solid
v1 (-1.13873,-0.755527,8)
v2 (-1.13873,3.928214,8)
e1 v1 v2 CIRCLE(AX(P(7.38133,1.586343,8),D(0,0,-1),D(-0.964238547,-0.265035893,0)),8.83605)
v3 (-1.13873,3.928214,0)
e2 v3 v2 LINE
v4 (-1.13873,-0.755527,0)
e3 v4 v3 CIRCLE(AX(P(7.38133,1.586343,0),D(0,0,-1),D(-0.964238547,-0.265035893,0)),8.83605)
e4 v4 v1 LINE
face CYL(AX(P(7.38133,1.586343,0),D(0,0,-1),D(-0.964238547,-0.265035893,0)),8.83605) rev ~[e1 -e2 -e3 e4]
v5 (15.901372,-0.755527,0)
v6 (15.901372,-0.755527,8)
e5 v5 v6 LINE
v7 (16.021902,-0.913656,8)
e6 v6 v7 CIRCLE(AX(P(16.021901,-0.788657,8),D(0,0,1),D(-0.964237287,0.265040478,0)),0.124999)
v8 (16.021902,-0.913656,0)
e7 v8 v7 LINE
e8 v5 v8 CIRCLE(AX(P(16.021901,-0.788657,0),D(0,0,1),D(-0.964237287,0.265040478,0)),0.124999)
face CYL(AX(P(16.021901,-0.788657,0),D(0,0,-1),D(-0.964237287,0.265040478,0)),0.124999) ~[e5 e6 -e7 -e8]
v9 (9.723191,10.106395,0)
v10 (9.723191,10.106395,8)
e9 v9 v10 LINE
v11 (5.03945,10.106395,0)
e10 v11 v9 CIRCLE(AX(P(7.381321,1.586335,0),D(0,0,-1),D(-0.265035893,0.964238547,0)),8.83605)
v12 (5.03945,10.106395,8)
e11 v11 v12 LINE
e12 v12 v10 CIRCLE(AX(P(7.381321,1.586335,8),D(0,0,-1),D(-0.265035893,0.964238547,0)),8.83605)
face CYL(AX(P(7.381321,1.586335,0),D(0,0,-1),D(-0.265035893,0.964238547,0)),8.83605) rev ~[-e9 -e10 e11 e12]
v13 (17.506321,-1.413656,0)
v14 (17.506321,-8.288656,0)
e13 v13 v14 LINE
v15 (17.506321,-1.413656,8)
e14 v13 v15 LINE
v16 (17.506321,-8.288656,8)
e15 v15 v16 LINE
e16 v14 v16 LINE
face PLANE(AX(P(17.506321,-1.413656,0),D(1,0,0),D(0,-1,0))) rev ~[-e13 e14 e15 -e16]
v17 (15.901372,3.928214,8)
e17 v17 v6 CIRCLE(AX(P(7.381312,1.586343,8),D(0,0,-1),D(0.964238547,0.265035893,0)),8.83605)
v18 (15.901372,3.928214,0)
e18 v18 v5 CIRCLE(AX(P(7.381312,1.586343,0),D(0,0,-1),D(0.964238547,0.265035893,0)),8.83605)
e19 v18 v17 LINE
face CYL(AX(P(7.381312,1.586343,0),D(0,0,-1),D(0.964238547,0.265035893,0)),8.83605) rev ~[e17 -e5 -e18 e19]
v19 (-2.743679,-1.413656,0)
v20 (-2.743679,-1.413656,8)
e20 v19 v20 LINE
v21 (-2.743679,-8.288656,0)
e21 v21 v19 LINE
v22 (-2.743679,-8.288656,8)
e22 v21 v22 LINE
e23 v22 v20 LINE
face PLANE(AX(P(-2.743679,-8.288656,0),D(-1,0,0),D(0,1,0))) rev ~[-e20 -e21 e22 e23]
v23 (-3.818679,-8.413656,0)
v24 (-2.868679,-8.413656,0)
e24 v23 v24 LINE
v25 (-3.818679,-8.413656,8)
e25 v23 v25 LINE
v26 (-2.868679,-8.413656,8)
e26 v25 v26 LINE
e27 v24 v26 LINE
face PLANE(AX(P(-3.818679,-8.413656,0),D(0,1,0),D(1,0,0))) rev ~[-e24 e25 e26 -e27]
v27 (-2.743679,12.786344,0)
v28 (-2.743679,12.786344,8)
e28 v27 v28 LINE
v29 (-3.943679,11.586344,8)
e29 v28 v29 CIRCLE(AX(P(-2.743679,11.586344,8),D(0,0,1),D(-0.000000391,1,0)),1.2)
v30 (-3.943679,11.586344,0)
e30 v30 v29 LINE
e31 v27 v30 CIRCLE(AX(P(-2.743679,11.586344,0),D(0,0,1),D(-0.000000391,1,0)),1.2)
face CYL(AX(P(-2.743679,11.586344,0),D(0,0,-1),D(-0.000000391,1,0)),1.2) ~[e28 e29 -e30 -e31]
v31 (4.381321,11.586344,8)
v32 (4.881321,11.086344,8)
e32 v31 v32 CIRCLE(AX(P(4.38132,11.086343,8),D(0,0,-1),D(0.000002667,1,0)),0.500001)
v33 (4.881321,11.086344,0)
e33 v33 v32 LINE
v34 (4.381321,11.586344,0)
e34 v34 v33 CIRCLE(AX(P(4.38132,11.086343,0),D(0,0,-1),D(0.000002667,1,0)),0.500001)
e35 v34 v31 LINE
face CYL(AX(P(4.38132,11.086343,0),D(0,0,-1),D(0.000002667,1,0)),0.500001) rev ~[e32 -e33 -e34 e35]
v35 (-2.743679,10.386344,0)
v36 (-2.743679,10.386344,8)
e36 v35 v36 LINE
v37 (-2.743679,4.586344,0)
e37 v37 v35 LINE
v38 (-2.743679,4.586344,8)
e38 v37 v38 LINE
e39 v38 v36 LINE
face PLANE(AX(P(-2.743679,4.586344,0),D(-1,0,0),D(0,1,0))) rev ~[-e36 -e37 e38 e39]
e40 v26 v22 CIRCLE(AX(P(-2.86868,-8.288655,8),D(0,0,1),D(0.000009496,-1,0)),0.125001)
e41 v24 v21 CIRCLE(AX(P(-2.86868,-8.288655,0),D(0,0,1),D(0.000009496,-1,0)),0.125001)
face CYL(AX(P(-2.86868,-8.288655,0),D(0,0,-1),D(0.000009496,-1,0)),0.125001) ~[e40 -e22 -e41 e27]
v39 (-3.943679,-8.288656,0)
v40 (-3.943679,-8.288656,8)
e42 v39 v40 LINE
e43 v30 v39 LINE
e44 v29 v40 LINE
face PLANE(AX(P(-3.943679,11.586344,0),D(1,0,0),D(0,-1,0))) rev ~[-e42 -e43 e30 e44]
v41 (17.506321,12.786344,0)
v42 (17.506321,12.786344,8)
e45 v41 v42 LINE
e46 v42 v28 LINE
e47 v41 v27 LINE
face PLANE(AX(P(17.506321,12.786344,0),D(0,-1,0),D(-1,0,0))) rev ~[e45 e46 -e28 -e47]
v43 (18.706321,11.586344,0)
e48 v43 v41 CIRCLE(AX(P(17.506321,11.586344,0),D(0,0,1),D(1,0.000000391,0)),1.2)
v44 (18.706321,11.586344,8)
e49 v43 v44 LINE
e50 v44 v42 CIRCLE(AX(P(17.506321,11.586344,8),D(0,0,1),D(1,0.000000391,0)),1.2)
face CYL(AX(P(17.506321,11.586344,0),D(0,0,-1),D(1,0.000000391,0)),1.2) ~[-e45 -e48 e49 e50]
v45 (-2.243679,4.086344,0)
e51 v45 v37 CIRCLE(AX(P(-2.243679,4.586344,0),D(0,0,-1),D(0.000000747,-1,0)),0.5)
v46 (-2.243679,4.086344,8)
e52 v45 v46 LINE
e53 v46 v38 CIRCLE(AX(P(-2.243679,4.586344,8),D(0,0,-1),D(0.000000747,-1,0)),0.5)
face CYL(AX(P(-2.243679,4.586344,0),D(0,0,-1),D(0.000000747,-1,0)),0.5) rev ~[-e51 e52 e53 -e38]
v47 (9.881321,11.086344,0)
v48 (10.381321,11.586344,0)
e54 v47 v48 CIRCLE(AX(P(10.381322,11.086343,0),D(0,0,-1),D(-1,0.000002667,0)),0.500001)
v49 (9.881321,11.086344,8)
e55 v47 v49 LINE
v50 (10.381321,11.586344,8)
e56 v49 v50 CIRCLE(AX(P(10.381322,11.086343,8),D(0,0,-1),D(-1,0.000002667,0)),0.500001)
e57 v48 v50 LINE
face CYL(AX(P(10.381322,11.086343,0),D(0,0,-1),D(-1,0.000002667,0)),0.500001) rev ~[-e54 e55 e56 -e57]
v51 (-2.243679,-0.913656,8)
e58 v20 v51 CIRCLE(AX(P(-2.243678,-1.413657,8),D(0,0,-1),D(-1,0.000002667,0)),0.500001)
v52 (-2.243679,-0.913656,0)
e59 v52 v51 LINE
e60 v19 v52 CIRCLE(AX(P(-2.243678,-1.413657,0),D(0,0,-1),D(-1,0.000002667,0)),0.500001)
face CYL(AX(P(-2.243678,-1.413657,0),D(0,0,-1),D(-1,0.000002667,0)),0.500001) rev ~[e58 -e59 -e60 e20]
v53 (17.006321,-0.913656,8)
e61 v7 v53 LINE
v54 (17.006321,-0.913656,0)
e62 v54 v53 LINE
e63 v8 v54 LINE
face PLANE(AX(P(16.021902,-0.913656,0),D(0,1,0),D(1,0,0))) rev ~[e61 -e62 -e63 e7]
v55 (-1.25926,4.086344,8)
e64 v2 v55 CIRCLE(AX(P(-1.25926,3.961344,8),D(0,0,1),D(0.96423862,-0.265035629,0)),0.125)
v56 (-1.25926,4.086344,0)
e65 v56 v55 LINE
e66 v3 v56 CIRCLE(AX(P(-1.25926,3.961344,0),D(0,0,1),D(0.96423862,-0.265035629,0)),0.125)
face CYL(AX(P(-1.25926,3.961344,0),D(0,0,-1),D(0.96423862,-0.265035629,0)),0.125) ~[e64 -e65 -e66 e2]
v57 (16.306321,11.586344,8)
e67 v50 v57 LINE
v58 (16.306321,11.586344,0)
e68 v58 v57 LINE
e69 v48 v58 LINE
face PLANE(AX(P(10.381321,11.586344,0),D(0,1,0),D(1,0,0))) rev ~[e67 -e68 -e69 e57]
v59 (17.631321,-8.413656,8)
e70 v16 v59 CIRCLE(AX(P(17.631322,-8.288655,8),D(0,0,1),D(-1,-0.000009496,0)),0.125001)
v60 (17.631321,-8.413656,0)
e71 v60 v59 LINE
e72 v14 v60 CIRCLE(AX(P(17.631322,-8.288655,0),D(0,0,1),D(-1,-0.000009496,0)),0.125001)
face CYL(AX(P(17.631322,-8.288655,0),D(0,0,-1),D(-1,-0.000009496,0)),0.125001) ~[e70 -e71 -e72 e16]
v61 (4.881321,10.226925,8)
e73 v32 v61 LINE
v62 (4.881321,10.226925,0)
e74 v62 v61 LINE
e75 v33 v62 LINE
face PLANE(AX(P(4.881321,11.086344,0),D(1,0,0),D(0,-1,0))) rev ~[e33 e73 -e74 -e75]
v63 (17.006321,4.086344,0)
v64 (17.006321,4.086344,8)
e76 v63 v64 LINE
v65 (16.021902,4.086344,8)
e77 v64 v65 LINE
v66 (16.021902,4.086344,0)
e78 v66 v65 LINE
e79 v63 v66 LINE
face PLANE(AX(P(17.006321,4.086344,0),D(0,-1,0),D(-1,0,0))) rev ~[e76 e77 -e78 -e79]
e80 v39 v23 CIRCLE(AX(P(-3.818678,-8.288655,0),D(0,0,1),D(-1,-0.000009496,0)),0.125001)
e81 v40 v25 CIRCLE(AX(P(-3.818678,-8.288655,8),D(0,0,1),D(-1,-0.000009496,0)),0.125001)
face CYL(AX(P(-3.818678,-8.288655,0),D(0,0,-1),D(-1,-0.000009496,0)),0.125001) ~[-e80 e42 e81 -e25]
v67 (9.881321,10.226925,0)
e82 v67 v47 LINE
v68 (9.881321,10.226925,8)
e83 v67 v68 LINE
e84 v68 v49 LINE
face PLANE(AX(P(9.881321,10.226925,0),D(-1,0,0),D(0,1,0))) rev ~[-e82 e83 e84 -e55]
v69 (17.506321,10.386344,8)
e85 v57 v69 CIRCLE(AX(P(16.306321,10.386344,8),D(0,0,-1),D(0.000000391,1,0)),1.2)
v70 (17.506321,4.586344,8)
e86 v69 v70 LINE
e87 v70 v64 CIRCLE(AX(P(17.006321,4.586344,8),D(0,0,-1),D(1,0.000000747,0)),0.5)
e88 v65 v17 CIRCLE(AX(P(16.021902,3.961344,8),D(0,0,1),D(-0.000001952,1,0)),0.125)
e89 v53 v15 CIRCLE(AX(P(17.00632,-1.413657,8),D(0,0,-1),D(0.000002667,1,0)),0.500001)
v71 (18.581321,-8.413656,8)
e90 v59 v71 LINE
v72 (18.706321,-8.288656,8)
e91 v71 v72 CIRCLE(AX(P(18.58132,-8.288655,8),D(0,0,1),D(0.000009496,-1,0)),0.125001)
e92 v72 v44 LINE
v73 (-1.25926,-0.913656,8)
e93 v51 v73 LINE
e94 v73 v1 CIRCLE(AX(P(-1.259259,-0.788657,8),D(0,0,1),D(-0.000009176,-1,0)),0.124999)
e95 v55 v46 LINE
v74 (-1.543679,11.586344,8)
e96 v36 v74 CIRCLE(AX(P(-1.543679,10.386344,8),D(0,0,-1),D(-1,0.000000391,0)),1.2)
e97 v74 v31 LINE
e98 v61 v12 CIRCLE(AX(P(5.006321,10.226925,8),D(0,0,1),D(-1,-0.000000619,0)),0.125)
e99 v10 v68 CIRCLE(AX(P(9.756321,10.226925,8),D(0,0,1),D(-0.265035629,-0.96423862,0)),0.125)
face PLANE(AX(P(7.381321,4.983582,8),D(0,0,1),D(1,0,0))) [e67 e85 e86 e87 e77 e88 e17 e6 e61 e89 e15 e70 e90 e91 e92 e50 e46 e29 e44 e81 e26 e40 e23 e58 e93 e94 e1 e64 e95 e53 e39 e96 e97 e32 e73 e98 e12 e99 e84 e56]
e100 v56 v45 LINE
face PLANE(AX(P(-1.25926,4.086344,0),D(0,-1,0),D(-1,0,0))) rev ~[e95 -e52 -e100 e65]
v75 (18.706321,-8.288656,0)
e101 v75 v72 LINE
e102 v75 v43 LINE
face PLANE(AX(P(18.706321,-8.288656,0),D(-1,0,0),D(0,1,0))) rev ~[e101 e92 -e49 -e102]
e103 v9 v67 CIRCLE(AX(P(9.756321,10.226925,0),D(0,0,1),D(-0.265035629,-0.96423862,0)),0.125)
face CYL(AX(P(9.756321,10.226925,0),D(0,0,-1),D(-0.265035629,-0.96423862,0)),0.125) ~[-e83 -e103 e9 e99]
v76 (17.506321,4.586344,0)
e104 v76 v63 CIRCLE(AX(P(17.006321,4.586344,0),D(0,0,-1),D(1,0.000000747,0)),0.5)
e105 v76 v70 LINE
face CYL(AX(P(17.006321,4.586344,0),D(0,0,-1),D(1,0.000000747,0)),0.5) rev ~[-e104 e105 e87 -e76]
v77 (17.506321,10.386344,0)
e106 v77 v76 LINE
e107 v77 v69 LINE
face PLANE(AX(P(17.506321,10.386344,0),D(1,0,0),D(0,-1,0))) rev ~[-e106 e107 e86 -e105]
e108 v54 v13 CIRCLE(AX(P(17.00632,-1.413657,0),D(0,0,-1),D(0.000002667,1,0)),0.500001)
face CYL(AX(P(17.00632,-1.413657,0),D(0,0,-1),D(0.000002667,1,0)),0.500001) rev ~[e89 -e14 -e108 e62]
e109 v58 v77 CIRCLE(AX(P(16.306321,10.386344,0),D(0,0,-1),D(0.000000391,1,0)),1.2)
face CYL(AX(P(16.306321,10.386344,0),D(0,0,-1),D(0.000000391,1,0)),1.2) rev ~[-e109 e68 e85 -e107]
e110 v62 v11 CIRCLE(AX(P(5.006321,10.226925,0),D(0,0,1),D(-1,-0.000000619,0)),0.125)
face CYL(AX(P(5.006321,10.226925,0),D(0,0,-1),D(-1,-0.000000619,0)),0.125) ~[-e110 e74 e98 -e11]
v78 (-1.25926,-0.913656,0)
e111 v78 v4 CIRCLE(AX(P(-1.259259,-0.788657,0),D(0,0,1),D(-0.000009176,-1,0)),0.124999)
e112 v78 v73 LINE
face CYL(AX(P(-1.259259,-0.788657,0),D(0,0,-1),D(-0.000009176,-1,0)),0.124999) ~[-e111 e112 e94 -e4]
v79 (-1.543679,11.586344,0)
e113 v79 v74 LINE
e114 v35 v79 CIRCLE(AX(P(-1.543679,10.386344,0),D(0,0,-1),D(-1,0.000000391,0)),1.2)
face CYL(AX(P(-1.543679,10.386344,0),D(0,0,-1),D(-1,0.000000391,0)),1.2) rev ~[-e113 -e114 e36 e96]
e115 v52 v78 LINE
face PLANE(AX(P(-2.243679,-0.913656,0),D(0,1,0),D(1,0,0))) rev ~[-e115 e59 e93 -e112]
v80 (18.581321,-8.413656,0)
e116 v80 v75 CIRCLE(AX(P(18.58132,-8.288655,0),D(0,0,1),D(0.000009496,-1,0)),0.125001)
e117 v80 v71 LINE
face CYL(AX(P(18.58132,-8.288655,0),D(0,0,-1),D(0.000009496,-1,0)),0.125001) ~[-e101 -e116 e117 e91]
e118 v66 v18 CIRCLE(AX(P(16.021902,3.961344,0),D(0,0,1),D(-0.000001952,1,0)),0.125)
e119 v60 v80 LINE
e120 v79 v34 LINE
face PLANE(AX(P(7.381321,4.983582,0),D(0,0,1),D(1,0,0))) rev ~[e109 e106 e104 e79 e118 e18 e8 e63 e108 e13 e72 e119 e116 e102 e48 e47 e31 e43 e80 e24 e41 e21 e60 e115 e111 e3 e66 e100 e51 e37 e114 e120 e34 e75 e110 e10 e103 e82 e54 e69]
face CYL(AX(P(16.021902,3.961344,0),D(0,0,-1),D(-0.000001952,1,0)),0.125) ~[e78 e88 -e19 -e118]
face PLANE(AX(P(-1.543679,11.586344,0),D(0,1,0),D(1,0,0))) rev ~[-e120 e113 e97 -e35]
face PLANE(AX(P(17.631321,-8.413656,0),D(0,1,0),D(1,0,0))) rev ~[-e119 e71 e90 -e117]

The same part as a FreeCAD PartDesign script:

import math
import FreeCAD as App
import Part
import Sketcher

V = App.Vector

doc = App.newDocument("Part")
body = doc.addObject("PartDesign::Body", "Body")

sketch1 = body.newObject("Sketcher::SketchObject", "Sketch")
sketch1.AttachmentSupport = (doc.getObject("XY_Plane"), [""])
sketch1.MapMode = "FlatFace"
sketch1.addGeometry([
    Part.LineSegment(V(-3.943679, 11.586344, 0), V(-3.943679, -8.288656, 0)),
    Part.ArcOfCircle(Part.Circle(V(-3.818678, -8.288655, 0), V(0, 0, 1), 0.125001), math.radians(-179.999456), math.radians(-90.000544)),
    Part.LineSegment(V(-3.818679, -8.413656, 0), V(-2.868679, -8.413656, 0)),
    Part.ArcOfCircle(Part.Circle(V(-2.86868, -8.288655, 0), V(0, 0, 1), 0.125001), math.radians(-89.999456), math.radians(-0.000544)),
    Part.LineSegment(V(-2.743679, -8.288656, 0), V(-2.743679, -1.413656, 0)),
    Part.ArcOfCircle(Part.Circle(V(-2.243678, -1.413657, 0), V(0, 0, 1), 0.500001), math.radians(90.000153), math.radians(179.999847)),
    Part.LineSegment(V(-2.243679, -0.913656, 0), V(-1.25926, -0.913656, 0)),
    Part.ArcOfCircle(Part.Circle(V(-1.259259, -0.788657, 0), V(0, 0, 1), 0.124999), math.radians(-90.000526), math.radians(15.369358)),
    Part.ArcOfCircle(Part.Circle(V(7.38133, 1.586343, 0), V(0, 0, 1), 8.83605), math.radians(164.630914), math.radians(195.369086)),
    Part.ArcOfCircle(Part.Circle(V(-1.25926, 3.961344, 0), V(0, 0, 1), 0.125), math.radians(-15.36907), math.radians(89.999888)),
    Part.LineSegment(V(-1.25926, 4.086344, 0), V(-2.243679, 4.086344, 0)),
    Part.ArcOfCircle(Part.Circle(V(-2.243679, 4.586344, 0), V(0, 0, 1), 0.5), math.radians(179.999957), math.radians(270.000043)),
    Part.LineSegment(V(-2.743679, 4.586344, 0), V(-2.743679, 10.386344, 0)),
    Part.ArcOfCircle(Part.Circle(V(-1.543679, 10.386344, 0), V(0, 0, 1), 1.2), math.radians(90.000022), math.radians(179.999978)),
    Part.LineSegment(V(-1.543679, 11.586344, 0), V(4.381321, 11.586344, 0)),
    Part.ArcOfCircle(Part.Circle(V(4.38132, 11.086343, 0), V(0, 0, 1), 0.500001), math.radians(0.000153), math.radians(89.999847)),
    Part.LineSegment(V(4.881321, 11.086344, 0), V(4.881321, 10.226925, 0)),
    Part.ArcOfCircle(Part.Circle(V(5.006321, 10.226925, 0), V(0, 0, 1), 0.125), math.radians(-179.999965), math.radians(-74.631203)),
    Part.ArcOfCircle(Part.Circle(V(7.381321, 1.586335, 0), V(0, 0, 1), 8.83605), math.radians(74.630914), math.radians(105.369086)),
    Part.ArcOfCircle(Part.Circle(V(9.756321, 10.226925, 0), V(0, 0, 1), 0.125), math.radians(-105.36907), math.radians(-0.000112)),
    Part.LineSegment(V(9.881321, 10.226925, 0), V(9.881321, 11.086344, 0)),
    Part.ArcOfCircle(Part.Circle(V(10.381322, 11.086343, 0), V(0, 0, 1), 0.500001), math.radians(90.000153), math.radians(179.999847)),
    Part.LineSegment(V(10.381321, 11.586344, 0), V(16.306321, 11.586344, 0)),
    Part.ArcOfCircle(Part.Circle(V(16.306321, 10.386344, 0), V(0, 0, 1), 1.2), math.radians(0.000022), math.radians(89.999978)),
    Part.LineSegment(V(17.506321, 10.386344, 0), V(17.506321, 4.586344, 0)),
    Part.ArcOfCircle(Part.Circle(V(17.006321, 4.586344, 0), V(0, 0, 1), 0.5), math.radians(-90.000043), math.radians(0.000043)),
    Part.LineSegment(V(17.006321, 4.086344, 0), V(16.021902, 4.086344, 0)),
    Part.ArcOfCircle(Part.Circle(V(16.021902, 3.961344, 0), V(0, 0, 1), 0.125), math.radians(90.000112), math.radians(195.36907)),
    Part.ArcOfCircle(Part.Circle(V(7.381312, 1.586343, 0), V(0, 0, 1), 8.83605), math.radians(-15.369086), math.radians(15.369086)),
    Part.ArcOfCircle(Part.Circle(V(16.021901, -0.788657, 0), V(0, 0, 1), 0.124999), math.radians(164.630642), math.radians(270.000526)),
    Part.LineSegment(V(16.021902, -0.913656, 0), V(17.006321, -0.913656, 0)),
    Part.ArcOfCircle(Part.Circle(V(17.00632, -1.413657, 0), V(0, 0, 1), 0.500001), math.radians(0.000153), math.radians(89.999847)),
    Part.LineSegment(V(17.506321, -1.413656, 0), V(17.506321, -8.288656, 0)),
    Part.ArcOfCircle(Part.Circle(V(17.631322, -8.288655, 0), V(0, 0, 1), 0.125001), math.radians(-179.999456), math.radians(-90.000544)),
    Part.LineSegment(V(17.631321, -8.413656, 0), V(18.581321, -8.413656, 0)),
    Part.ArcOfCircle(Part.Circle(V(18.58132, -8.288655, 0), V(0, 0, 1), 0.125001), math.radians(-89.999456), math.radians(-0.000544)),
    Part.LineSegment(V(18.706321, -8.288656, 0), V(18.706321, 11.586344, 0)),
    Part.ArcOfCircle(Part.Circle(V(17.506321, 11.586344, 0), V(0, 0, 1), 1.2), math.radians(0.000022), math.radians(89.999978)),
    Part.LineSegment(V(17.506321, 12.786344, 0), V(-2.743679, 12.786344, 0)),
    Part.ArcOfCircle(Part.Circle(V(-2.743679, 11.586344, 0), V(0, 0, 1), 1.2), math.radians(90.000022), math.radians(179.999978)),
], False)
sketch1.addConstraint([
    Sketcher.Constraint("Coincident", 0, 2, 1, 1),
    Sketcher.Constraint("Coincident", 1, 2, 2, 1),
    Sketcher.Constraint("Coincident", 2, 2, 3, 1),
    Sketcher.Constraint("Coincident", 3, 2, 4, 1),
    Sketcher.Constraint("Coincident", 4, 2, 5, 2),
    Sketcher.Constraint("Coincident", 5, 1, 6, 1),
    Sketcher.Constraint("Coincident", 6, 2, 7, 1),
    Sketcher.Constraint("Coincident", 7, 2, 8, 2),
    Sketcher.Constraint("Tangent", 8, 1, 9, 1),
    Sketcher.Constraint("Tangent", 9, 2, 10, 1),
    Sketcher.Constraint("Tangent", 10, 2, 11, 2),
    Sketcher.Constraint("Tangent", 11, 1, 12, 1),
    Sketcher.Constraint("Tangent", 12, 2, 13, 2),
    Sketcher.Constraint("Tangent", 13, 1, 14, 1),
    Sketcher.Constraint("Coincident", 14, 2, 15, 2),
    Sketcher.Constraint("Coincident", 15, 1, 16, 1),
    Sketcher.Constraint("Tangent", 16, 2, 17, 1),
    Sketcher.Constraint("Coincident", 17, 2, 18, 2),
    Sketcher.Constraint("Tangent", 18, 1, 19, 1),
    Sketcher.Constraint("Tangent", 19, 2, 20, 1),
    Sketcher.Constraint("Coincident", 20, 2, 21, 2),
    Sketcher.Constraint("Coincident", 21, 1, 22, 1),
    Sketcher.Constraint("Tangent", 22, 2, 23, 2),
    Sketcher.Constraint("Tangent", 23, 1, 24, 1),
    Sketcher.Constraint("Tangent", 24, 2, 25, 2),
    Sketcher.Constraint("Tangent", 25, 1, 26, 1),
    Sketcher.Constraint("Tangent", 26, 2, 27, 1),
    Sketcher.Constraint("Tangent", 27, 2, 28, 2),
    Sketcher.Constraint("Coincident", 28, 1, 29, 1),
    Sketcher.Constraint("Coincident", 29, 2, 30, 1),
    Sketcher.Constraint("Coincident", 30, 2, 31, 2),
    Sketcher.Constraint("Coincident", 31, 1, 32, 1),
    Sketcher.Constraint("Coincident", 32, 2, 33, 1),
    Sketcher.Constraint("Coincident", 33, 2, 34, 1),
    Sketcher.Constraint("Coincident", 34, 2, 35, 1),
    Sketcher.Constraint("Coincident", 35, 2, 36, 1),
    Sketcher.Constraint("Tangent", 36, 2, 37, 1),
    Sketcher.Constraint("Tangent", 37, 2, 38, 1),
    Sketcher.Constraint("Tangent", 38, 2, 39, 1),
    Sketcher.Constraint("Tangent", 39, 2, 0, 1),
    Sketcher.Constraint("Vertical", 0),
    Sketcher.Constraint("Horizontal", 2),
    Sketcher.Constraint("Vertical", 4),
    Sketcher.Constraint("Horizontal", 6),
    Sketcher.Constraint("Horizontal", 10),
    Sketcher.Constraint("Vertical", 12),
    Sketcher.Constraint("Horizontal", 14),
    Sketcher.Constraint("Vertical", 16),
    Sketcher.Constraint("Vertical", 20),
    Sketcher.Constraint("Horizontal", 22),
    Sketcher.Constraint("Vertical", 24),
    Sketcher.Constraint("Horizontal", 26),
    Sketcher.Constraint("Horizontal", 30),
    Sketcher.Constraint("Vertical", 32),
    Sketcher.Constraint("Horizontal", 34),
    Sketcher.Constraint("Vertical", 36),
    Sketcher.Constraint("Horizontal", 38),
    Sketcher.Constraint("Equal", 1, 3),
    Sketcher.Constraint("Equal", 7, 9),
    Sketcher.Constraint("Equal", 5, 11),
    Sketcher.Constraint("Equal", 11, 15),
    Sketcher.Constraint("Equal", 9, 17),
    Sketcher.Constraint("Equal", 8, 18),
    Sketcher.Constraint("Equal", 17, 19),
    Sketcher.Constraint("Equal", 15, 21),
    Sketcher.Constraint("Equal", 13, 23),
    Sketcher.Constraint("Equal", 21, 25),
    Sketcher.Constraint("Equal", 19, 27),
    Sketcher.Constraint("Equal", 18, 28),
    Sketcher.Constraint("Equal", 27, 29),
    Sketcher.Constraint("Equal", 25, 31),
    Sketcher.Constraint("Equal", 27, 33),
    Sketcher.Constraint("Equal", 33, 35),
    Sketcher.Constraint("Equal", 23, 37),
    Sketcher.Constraint("Equal", 37, 39),
    Sketcher.Constraint("Horizontal", 17, 3, 19, 3),
    Sketcher.Constraint("Horizontal", 15, 3, 21, 3),
    Sketcher.Constraint("Horizontal", 11, 3, 25, 3),
    Sketcher.Constraint("Horizontal", 8, 3, 28, 3),
    Sketcher.Constraint("Horizontal", 7, 3, 29, 3),
    Sketcher.Constraint("Horizontal", 3, 3, 33, 3),
    Sketcher.Constraint("Horizontal", 35, 3, 0, 2),
    Sketcher.Constraint("Horizontal", 0, 2, 3, 2),
    Sketcher.Constraint("Horizontal", 31, 3, 4, 2),
    Sketcher.Constraint("Horizontal", 39, 3, 13, 1),
    Sketcher.Constraint("Horizontal", 21, 3, 15, 1),
    Sketcher.Constraint("Horizontal", 17, 2, 18, 1),
    Sketcher.Constraint("Horizontal", 15, 1, 20, 2),
    Sketcher.Constraint("Horizontal", 7, 2, 28, 1),
    Sketcher.Constraint("Horizontal", 4, 2, 31, 1),
    Sketcher.Constraint("Horizontal", 3, 2, 32, 2),
    Sketcher.Constraint("Horizontal", 2, 2, 33, 2),
    Sketcher.Constraint("Horizontal", 32, 2, 35, 2),
    Sketcher.Constraint("Vertical", 7, 3, 9, 3),
    Sketcher.Constraint("Vertical", 5, 3, 11, 3),
    Sketcher.Constraint("Vertical", 25, 3, 31, 3),
    Sketcher.Constraint("Vertical", 3, 3, 2, 2),
    Sketcher.Constraint("Vertical", 39, 3, 3, 2),
    Sketcher.Constraint("Vertical", 11, 3, 5, 1),
    Sketcher.Constraint("Vertical", 9, 3, 6, 2),
    Sketcher.Constraint("Vertical", 7, 2, 8, 1),
    Sketcher.Constraint("Vertical", 15, 3, 14, 2),
    Sketcher.Constraint("Vertical", 37, 3, 23, 1),
    Sketcher.Constraint("Vertical", 26, 2, 29, 2),
    Sketcher.Constraint("Vertical", 25, 1, 30, 2),
    Sketcher.Constraint("Vertical", 35, 3, 34, 2),
    Sketcher.Constraint("Equal", 14, 22),
    Sketcher.Constraint("Equal", 10, 26),
    Sketcher.Constraint("Equal", 2, 34),
    Sketcher.Constraint("Radius", 5, 0.500001),
    Sketcher.Constraint("Radius", 13, 1.2),
    Sketcher.Constraint("DistanceY", 12, 1, 12, 2, 5.8),
    Sketcher.Constraint("Radius", 1, 0.125001),
    Sketcher.Constraint("DistanceX", 2, 1, 2, 2, 0.95),
    Sketcher.Constraint("DistanceX", 38, 2, 38, 1, 20.25),
    Sketcher.Constraint("DistanceX", 14, 1, 14, 2, 5.925),
    Sketcher.Constraint("DistanceY", 0, 2, 0, 1, 19.875),
    Sketcher.Constraint("DistanceY", 4, 1, 4, 2, 6.875),
    Sketcher.Constraint("Radius", 8, 8.83605),
    Sketcher.Constraint("DistanceX", 6, 1, 6, 2, 0.984419),
    Sketcher.Constraint("DistanceY", 16, 2, 16, 1, 0.859419),
    Sketcher.Constraint("DistanceX", -1, 1, 29, 3, 16.021901),
    Sketcher.Constraint("DistanceX", -1, 1, 18, 3, 7.381321),
    Sketcher.Constraint("DistanceY", 1, 3, -1, 1, 8.288655),
])
pad1 = body.newObject("PartDesign::Pad", "Pad")
pad1.Profile = sketch1
pad1.Length = 8

doc.recompute()
